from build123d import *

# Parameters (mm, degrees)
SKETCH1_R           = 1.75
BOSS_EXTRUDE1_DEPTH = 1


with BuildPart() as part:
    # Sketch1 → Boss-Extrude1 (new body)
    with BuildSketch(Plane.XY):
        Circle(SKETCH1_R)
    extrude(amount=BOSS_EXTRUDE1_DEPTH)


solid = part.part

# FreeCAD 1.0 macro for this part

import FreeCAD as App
import Part
import Sketcher
from FreeCAD import Vector
Q = App.Units.Quantity

doc = App.newDocument("Part")
body = doc.addObject("PartDesign::Body", "Body")

# Sketch on XY plane
sketch1 = body.newObject("Sketcher::SketchObject", "Sketch")
sketch1.AttachmentSupport = (doc.getObject("XY_Plane"), [""])
sketch1.MapMode = "FlatFace"
sketch1.addGeometry(Part.Circle(Vector(0, 0, 0), Vector(0, 0, 1), 1.8), False)
sketch1.addConstraint([
    Sketcher.Constraint("Coincident", 0, 3, -1, 1),
    Sketcher.Constraint("Diameter", 0, Q("3.5 mm")),
])
pad1 = body.newObject("PartDesign::Pad", "Pad")
pad1.Profile = sketch1
pad1.Length = 1

doc.recompute()
